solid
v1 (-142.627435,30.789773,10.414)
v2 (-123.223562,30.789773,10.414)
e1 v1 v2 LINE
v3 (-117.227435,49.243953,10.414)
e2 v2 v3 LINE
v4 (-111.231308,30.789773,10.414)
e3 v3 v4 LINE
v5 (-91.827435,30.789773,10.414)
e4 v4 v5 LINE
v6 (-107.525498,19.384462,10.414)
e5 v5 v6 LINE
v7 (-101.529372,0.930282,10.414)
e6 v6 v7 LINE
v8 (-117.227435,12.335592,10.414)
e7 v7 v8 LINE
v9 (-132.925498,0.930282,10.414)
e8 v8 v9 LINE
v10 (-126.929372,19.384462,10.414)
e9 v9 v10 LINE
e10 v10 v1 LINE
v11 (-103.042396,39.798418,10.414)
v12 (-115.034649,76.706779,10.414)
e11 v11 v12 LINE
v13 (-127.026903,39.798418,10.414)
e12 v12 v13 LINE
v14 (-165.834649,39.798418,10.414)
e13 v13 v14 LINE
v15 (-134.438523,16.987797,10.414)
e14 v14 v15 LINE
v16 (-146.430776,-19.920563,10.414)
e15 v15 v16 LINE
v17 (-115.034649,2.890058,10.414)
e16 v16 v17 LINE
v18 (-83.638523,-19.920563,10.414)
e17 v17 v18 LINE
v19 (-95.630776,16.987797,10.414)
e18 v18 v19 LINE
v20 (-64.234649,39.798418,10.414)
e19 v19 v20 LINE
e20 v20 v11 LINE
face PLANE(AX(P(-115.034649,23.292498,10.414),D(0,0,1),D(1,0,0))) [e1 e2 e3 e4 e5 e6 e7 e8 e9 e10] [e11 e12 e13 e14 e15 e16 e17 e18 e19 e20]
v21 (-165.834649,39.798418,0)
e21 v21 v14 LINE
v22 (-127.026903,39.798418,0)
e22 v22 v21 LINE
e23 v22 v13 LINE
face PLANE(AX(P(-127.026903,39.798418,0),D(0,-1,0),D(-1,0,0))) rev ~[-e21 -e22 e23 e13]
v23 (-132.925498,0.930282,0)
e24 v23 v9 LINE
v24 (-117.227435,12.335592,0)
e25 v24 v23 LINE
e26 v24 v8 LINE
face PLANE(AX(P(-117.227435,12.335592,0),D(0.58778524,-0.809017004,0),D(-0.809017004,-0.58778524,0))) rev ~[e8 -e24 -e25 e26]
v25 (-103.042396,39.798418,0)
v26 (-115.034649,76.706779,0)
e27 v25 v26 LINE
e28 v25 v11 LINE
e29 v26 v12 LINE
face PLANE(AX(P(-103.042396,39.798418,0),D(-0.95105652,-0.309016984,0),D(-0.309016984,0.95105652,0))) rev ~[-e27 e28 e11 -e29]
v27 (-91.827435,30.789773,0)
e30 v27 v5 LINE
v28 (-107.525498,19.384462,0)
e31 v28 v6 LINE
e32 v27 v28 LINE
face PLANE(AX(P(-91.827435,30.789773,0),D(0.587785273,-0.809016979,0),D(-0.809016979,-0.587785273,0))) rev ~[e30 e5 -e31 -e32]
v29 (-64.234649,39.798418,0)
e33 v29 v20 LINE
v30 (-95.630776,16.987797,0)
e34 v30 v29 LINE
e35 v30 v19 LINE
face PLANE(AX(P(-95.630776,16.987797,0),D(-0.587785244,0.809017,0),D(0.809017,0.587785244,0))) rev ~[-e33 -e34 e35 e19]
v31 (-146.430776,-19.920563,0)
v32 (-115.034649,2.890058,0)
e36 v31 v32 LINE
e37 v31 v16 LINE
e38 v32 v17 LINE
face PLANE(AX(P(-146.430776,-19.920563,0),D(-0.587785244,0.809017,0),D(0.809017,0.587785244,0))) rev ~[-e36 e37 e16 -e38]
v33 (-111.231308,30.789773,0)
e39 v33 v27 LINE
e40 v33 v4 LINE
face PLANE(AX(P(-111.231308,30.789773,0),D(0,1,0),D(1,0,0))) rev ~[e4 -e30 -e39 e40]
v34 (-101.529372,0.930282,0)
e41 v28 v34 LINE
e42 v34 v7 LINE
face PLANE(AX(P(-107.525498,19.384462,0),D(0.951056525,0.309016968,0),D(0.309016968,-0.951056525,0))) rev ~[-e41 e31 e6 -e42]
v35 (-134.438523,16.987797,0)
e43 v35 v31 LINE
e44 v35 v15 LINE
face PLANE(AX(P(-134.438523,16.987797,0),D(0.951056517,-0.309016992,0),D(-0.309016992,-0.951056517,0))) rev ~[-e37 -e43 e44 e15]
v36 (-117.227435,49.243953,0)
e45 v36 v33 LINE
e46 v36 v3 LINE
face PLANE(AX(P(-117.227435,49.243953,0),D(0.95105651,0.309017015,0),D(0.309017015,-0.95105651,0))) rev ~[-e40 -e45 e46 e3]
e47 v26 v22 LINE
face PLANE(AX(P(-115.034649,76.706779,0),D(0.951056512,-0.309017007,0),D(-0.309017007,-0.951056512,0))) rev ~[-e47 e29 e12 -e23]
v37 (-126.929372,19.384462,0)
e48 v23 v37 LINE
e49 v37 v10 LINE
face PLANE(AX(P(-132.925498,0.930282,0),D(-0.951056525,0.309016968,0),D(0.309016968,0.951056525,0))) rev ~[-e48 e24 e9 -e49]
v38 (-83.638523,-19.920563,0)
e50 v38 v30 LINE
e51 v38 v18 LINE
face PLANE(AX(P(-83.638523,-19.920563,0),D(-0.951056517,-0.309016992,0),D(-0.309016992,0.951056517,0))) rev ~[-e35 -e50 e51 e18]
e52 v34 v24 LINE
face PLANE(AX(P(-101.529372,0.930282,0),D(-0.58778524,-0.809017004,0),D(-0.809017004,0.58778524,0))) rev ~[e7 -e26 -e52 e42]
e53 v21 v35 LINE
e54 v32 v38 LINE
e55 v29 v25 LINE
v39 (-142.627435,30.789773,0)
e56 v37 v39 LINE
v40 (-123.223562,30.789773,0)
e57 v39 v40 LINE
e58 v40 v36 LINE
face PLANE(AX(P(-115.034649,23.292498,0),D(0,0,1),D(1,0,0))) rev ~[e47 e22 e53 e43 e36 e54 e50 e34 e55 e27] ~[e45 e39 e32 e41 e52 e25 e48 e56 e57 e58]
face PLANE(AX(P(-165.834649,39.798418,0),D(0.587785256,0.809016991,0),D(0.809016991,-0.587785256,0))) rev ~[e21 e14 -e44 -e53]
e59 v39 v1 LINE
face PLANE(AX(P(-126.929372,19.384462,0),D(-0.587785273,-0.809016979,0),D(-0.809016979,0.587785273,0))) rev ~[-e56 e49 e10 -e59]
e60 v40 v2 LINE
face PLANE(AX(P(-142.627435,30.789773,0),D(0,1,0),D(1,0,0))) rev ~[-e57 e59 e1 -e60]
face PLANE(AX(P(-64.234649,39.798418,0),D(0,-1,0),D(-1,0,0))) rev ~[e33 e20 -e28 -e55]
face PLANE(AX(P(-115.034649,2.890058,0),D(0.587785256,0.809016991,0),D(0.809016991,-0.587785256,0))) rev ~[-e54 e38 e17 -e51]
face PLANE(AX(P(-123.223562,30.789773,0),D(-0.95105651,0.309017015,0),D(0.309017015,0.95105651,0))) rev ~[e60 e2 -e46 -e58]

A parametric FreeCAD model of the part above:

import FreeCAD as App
import Part
import Sketcher
Q = App.Units.Quantity

doc = App.newDocument("Part")
params = doc.addObject("Spreadsheet::Sheet", "Params")
for row, (alias, value) in enumerate([
    ("pad1_length", "0.41 in"),
], start=1):
    params.set(f"A{row}", alias)
    params.set(f"B{row}", "=" + value)
    params.setAlias(f"B{row}", alias)

body = doc.addObject("PartDesign::Body", "Body")

sketch1 = doc.addObject("Sketcher::SketchObject", "Sketch")
body.addObject(sketch1)
sketch1.AttachmentSupport = (doc.XY_Plane, [""])
sketch1.MapMode = "FlatFace"
sketch1.addGeometry([
    Part.LineSegment(App.Vector(-134, 17, 0), App.Vector(-146, -20, 0)),
    Part.LineSegment(App.Vector(-146, -20, 0), App.Vector(-115, 3, 0)),
    Part.LineSegment(App.Vector(-115, 3, 0), App.Vector(-84, -20, 0)),
    Part.LineSegment(App.Vector(-84, -20, 0), App.Vector(-96, 17, 0)),
    Part.LineSegment(App.Vector(-96, 17, 0), App.Vector(-64, 40, 0)),
    Part.LineSegment(App.Vector(-64, 40, 0), App.Vector(-103, 40, 0)),
    Part.LineSegment(App.Vector(-103, 40, 0), App.Vector(-115, 77, 0)),
    Part.LineSegment(App.Vector(-115, 77, 0), App.Vector(-127, 40, 0)),
    Part.LineSegment(App.Vector(-127, 40, 0), App.Vector(-166, 40, 0)),
    Part.LineSegment(App.Vector(-166, 40, 0), App.Vector(-134, 17, 0)),
    Part.LineSegment(App.Vector(-143, 31, 0), App.Vector(-123, 31, 0)),
    Part.LineSegment(App.Vector(-123, 31, 0), App.Vector(-117, 49, 0)),
    Part.LineSegment(App.Vector(-117, 49, 0), App.Vector(-111, 31, 0)),
    Part.LineSegment(App.Vector(-111, 31, 0), App.Vector(-92, 31, 0)),
    Part.LineSegment(App.Vector(-92, 31, 0), App.Vector(-108, 19, 0)),
    Part.LineSegment(App.Vector(-108, 19, 0), App.Vector(-102, 1, 0)),
    Part.LineSegment(App.Vector(-102, 1, 0), App.Vector(-117, 12, 0)),
    Part.LineSegment(App.Vector(-117, 12, 0), App.Vector(-133, 1, 0)),
    Part.LineSegment(App.Vector(-133, 1, 0), App.Vector(-127, 19, 0)),
    Part.LineSegment(App.Vector(-127, 19, 0), App.Vector(-143, 31, 0)),
], False)
sketch1.addConstraint([
    Sketcher.Constraint("Coincident", 0, 2, 1, 1),
    Sketcher.Constraint("Coincident", 1, 2, 2, 1),
    Sketcher.Constraint("Coincident", 2, 2, 3, 1),
    Sketcher.Constraint("Coincident", 3, 2, 4, 1),
    Sketcher.Constraint("Coincident", 4, 2, 5, 1),
    Sketcher.Constraint("Coincident", 5, 2, 6, 1),
    Sketcher.Constraint("Coincident", 6, 2, 7, 1),
    Sketcher.Constraint("Coincident", 7, 2, 8, 1),
    Sketcher.Constraint("Coincident", 8, 2, 9, 1),
    Sketcher.Constraint("Coincident", 9, 2, 0, 1),
    Sketcher.Constraint("Coincident", 10, 2, 11, 1),
    Sketcher.Constraint("Coincident", 11, 2, 12, 1),
    Sketcher.Constraint("Coincident", 12, 2, 13, 1),
    Sketcher.Constraint("Coincident", 13, 2, 14, 1),
    Sketcher.Constraint("Coincident", 14, 2, 15, 1),
    Sketcher.Constraint("Coincident", 15, 2, 16, 1),
    Sketcher.Constraint("Coincident", 16, 2, 17, 1),
    Sketcher.Constraint("Coincident", 17, 2, 18, 1),
    Sketcher.Constraint("Coincident", 18, 2, 19, 1),
    Sketcher.Constraint("Coincident", 19, 2, 10, 1),
    Sketcher.Constraint("Horizontal", 5),
    Sketcher.Constraint("Horizontal", 8),
    Sketcher.Constraint("Horizontal", 10),
    Sketcher.Constraint("Horizontal", 13),
    Sketcher.Constraint("Parallel", 1, 4),
    Sketcher.Constraint("Parallel", 3, 6),
    Sketcher.Constraint("Parallel", 0, 7),
    Sketcher.Constraint("Parallel", 2, 9),
    Sketcher.Constraint("Parallel", 7, 11),
    Sketcher.Constraint("Parallel", 6, 12),
    Sketcher.Constraint("Parallel", 4, 14),
    Sketcher.Constraint("Parallel", 12, 15),
    Sketcher.Constraint("Parallel", 9, 16),
    Sketcher.Constraint("Parallel", 14, 17),
    Sketcher.Constraint("Parallel", 11, 18),
    Sketcher.Constraint("Parallel", 16, 19),
    Sketcher.Constraint("Horizontal", 0, 2, 2, 2),
    Sketcher.Constraint("Horizontal", 5, 2, 7, 2),
    Sketcher.Constraint("Horizontal", 3, 2, 9, 2),
    Sketcher.Constraint("Horizontal", 10, 2, 12, 2),
    Sketcher.Constraint("Horizontal", 15, 2, 17, 2),
    Sketcher.Constraint("Horizontal", 14, 2, 18, 2),
    Sketcher.Constraint("Vertical", 1, 2, 6, 2),
    Sketcher.Constraint("Vertical", 11, 2, 16, 2),
    Sketcher.Constraint("Equal", 5, 8),
    Sketcher.Constraint("Equal", 0, 1),
    Sketcher.Constraint("Equal", 1, 2),
    Sketcher.Constraint("Equal", 3, 4),
    Sketcher.Constraint("Equal", 4, 6),
    Sketcher.Constraint("Equal", 12, 14),
    Sketcher.Constraint("Equal", 14, 15),
    Sketcher.Constraint("Equal", 15, 16),
    Sketcher.Constraint("Angle", 0, Q("-108 deg")),
    Sketcher.Constraint("Angle", 1, Q("35.999999 deg")),
    Sketcher.Constraint("DistanceX", 0, 2, 3, 2, Q("2 in")),
    Sketcher.Constraint("DistanceX", 11, 2, 13, 2, Q("1 in")),
    Sketcher.Constraint("DistanceX", 14, 2, -1, 1, 107.525498),
    Sketcher.Constraint("DistanceX", 1, 2, -1, 1, 115.034649),
    Sketcher.Constraint("DistanceY", -1, 1, 6, 2, 76.706779),
    Sketcher.Constraint("DistanceY", -1, 1, 14, 2, 19.384462),
])
pad1 = doc.addObject("PartDesign::Pad", "Pad")
body.addObject(pad1)
pad1.Profile = sketch1
pad1.setExpression("Length", "Params.pad1_length")

doc.recompute()
